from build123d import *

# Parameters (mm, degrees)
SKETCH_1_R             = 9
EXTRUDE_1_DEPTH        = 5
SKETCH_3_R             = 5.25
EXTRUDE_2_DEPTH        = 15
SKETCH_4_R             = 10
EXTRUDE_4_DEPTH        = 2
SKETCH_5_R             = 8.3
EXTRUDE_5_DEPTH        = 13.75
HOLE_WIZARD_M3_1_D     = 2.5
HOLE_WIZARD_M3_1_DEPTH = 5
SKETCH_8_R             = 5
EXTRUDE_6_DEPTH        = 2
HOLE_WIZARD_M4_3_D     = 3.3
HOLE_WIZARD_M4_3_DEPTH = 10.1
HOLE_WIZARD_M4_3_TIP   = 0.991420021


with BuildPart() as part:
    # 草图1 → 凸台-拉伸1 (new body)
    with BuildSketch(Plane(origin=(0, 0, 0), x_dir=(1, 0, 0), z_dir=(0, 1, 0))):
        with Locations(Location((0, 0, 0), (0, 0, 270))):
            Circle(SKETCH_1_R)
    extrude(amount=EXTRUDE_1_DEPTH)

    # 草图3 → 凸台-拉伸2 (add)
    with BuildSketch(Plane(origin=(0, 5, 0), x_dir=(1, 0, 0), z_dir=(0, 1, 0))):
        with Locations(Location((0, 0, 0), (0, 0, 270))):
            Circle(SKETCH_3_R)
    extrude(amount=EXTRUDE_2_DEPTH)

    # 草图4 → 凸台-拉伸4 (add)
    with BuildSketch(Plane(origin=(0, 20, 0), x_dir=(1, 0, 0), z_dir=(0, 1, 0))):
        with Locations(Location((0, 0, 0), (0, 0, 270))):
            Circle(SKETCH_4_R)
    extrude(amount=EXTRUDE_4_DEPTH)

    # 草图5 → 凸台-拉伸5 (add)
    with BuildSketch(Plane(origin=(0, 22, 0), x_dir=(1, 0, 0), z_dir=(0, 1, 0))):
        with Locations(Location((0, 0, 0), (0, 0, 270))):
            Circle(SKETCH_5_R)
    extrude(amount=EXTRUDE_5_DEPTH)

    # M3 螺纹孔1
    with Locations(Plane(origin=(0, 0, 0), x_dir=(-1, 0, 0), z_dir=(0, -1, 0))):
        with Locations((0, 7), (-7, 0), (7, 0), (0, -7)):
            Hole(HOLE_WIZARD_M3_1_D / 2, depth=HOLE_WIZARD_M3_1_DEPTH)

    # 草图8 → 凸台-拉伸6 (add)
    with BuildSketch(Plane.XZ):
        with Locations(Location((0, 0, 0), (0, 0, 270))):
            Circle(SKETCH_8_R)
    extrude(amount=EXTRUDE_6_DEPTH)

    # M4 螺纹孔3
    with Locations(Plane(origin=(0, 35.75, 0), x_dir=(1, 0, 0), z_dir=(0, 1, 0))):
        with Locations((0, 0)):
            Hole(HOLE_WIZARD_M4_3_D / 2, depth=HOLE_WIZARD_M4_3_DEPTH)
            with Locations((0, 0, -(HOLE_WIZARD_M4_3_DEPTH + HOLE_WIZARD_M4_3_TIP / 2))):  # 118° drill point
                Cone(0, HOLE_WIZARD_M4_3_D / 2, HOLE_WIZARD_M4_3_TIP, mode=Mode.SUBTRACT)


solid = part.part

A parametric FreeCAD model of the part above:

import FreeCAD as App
import Part
import Sketcher
from FreeCAD import Vector

doc = App.newDocument("Part")
body = doc.addObject("PartDesign::Body", "Body")

# Sketch on XZ plane
sketch1 = body.newObject("Sketcher::SketchObject", "Sketch")
sketch1.AttachmentSupport = (doc.getObject("XZ_Plane"), [""])
sketch1.MapMode = "FlatFace"
sketch1.addGeometry(Part.Circle(Vector(0, 0, 0), Vector(0, 0, 1), 9), False)
sketch1.addConstraint([
    Sketcher.Constraint("Coincident", 0, 3, -1, 1),
    Sketcher.Constraint("Diameter", 0, 18.0),
])
pad1 = body.newObject("PartDesign::Pad", "Pad")
pad1.Profile = sketch1
pad1.Length = 5
pad1.Reversed = True

# Sketch on XZ plane
sketch2 = body.newObject("Sketcher::SketchObject", "Sketch001")
sketch2.AttachmentSupport = (doc.getObject("XZ_Plane"), [""])
sketch2.MapMode = "FlatFace"
sketch2.AttachmentOffset = App.Placement(Vector(0, 0, -5), App.Rotation())
sketch2.addGeometry(Part.Circle(Vector(0, 0, 0), Vector(0, 0, 1), 5.25), False)
sketch2.addConstraint([
    Sketcher.Constraint("Coincident", 0, 3, -1, 1),
    Sketcher.Constraint("Diameter", 0, 10.5),
])
pad2 = body.newObject("PartDesign::Pad", "Pad001")
pad2.Profile = sketch2
pad2.Length = 15
pad2.Reversed = True

# Sketch on XZ plane
sketch3 = body.newObject("Sketcher::SketchObject", "Sketch002")
sketch3.AttachmentSupport = (doc.getObject("XZ_Plane"), [""])
sketch3.MapMode = "FlatFace"
sketch3.AttachmentOffset = App.Placement(Vector(0, 0, -20), App.Rotation())
sketch3.addGeometry(Part.Circle(Vector(0, 0, 0), Vector(0, 0, 1), 10), False)
sketch3.addConstraint([
    Sketcher.Constraint("Coincident", 0, 3, -1, 1),
    Sketcher.Constraint("Diameter", 0, 20.0),
])
pad3 = body.newObject("PartDesign::Pad", "Pad002")
pad3.Profile = sketch3
pad3.Length = 2
pad3.Reversed = True

# Sketch on XZ plane
sketch4 = body.newObject("Sketcher::SketchObject", "Sketch003")
sketch4.AttachmentSupport = (doc.getObject("XZ_Plane"), [""])
sketch4.MapMode = "FlatFace"
sketch4.AttachmentOffset = App.Placement(Vector(0, 0, -22), App.Rotation())
sketch4.addGeometry(Part.Circle(Vector(0, 0, 0), Vector(0, 0, 1), 8.3), False)
sketch4.addConstraint([
    Sketcher.Constraint("Coincident", 0, 3, -1, 1),
    Sketcher.Constraint("Diameter", 0, 16.6),
])
pad4 = body.newObject("PartDesign::Pad", "Pad003")
pad4.Profile = sketch4
pad4.Length = 13.75
pad4.Reversed = True

# Sketch on XZ plane
sketch5 = body.newObject("Sketcher::SketchObject", "Sketch004")
sketch5.AttachmentSupport = (doc.getObject("XZ_Plane"), [""])
sketch5.MapMode = "FlatFace"
sketch5.addGeometry([
    Part.Circle(Vector(0, -7, 0), Vector(0, 0, 1), 1.25),
    Part.Circle(Vector(7, 0, 0), Vector(0, 0, 1), 1.25),
    Part.Circle(Vector(-7, 0, 0), Vector(0, 0, 1), 1.25),
    Part.Circle(Vector(0, 7, 0), Vector(0, 0, 1), 1.25),
], False)
sketch5.addConstraint([
    Sketcher.Constraint("Equal", 0, 1),
    Sketcher.Constraint("Equal", 1, 2),
    Sketcher.Constraint("Equal", 2, 3),
    Sketcher.Constraint("Symmetric", 1, 3, 2, 3, -1, 1),
    Sketcher.Constraint("Symmetric", 0, 3, 3, 3, -1, 1),
    Sketcher.Constraint("PointOnObject", 0, 3, -2),
    Sketcher.Constraint("PointOnObject", 1, 3, -1),
    Sketcher.Constraint("Diameter", 0, 2.5),
    Sketcher.Constraint("DistanceY", 0, 3, -1, 1, 7.0),
    Sketcher.Constraint("DistanceX", -1, 1, 1, 3, 7.0),
])
doc.recompute()
hole = body.newObject("PartDesign::Hole", "Hole")
hole.Profile = sketch5
hole.ThreadType = "None"
hole.Diameter = 2.5
hole.DepthType = "Dimension"
hole.Depth = 5
hole.DrillPoint = "Flat"

# Sketch on XZ plane
sketch6 = body.newObject("Sketcher::SketchObject", "Sketch005")
sketch6.AttachmentSupport = (doc.getObject("XZ_Plane"), [""])
sketch6.MapMode = "FlatFace"
sketch6.addGeometry(Part.Circle(Vector(0, 0, 0), Vector(0, 0, 1), 5), False)
sketch6.addConstraint([
    Sketcher.Constraint("Coincident", 0, 3, -1, 1),
    Sketcher.Constraint("Diameter", 0, 10.0),
])
pad5 = body.newObject("PartDesign::Pad", "Pad004")
pad5.Profile = sketch6
pad5.Length = 2

# Sketch on XZ plane
sketch7 = body.newObject("Sketcher::SketchObject", "Sketch006")
sketch7.AttachmentSupport = (doc.getObject("XZ_Plane"), [""])
sketch7.MapMode = "FlatFace"
sketch7.AttachmentOffset = App.Placement(Vector(0, 0, -35.75), App.Rotation())
sketch7.addGeometry(Part.Circle(Vector(0, 0, 0), Vector(0, 0, 1), 1.65), False)
sketch7.addConstraint([
    Sketcher.Constraint("Coincident", 0, 3, -1, 1),
    Sketcher.Constraint("Diameter", 0, 3.3),
])
doc.recompute()
hole2 = body.newObject("PartDesign::Hole", "Hole001")
hole2.Profile = sketch7
hole2.ThreadType = "None"
hole2.Diameter = 3.3
hole2.DepthType = "Dimension"
hole2.Depth = 10.1
hole2.DrillPoint = "Angled"
hole2.DrillPointAngle = 118
hole2.Reversed = True

doc.recompute()
